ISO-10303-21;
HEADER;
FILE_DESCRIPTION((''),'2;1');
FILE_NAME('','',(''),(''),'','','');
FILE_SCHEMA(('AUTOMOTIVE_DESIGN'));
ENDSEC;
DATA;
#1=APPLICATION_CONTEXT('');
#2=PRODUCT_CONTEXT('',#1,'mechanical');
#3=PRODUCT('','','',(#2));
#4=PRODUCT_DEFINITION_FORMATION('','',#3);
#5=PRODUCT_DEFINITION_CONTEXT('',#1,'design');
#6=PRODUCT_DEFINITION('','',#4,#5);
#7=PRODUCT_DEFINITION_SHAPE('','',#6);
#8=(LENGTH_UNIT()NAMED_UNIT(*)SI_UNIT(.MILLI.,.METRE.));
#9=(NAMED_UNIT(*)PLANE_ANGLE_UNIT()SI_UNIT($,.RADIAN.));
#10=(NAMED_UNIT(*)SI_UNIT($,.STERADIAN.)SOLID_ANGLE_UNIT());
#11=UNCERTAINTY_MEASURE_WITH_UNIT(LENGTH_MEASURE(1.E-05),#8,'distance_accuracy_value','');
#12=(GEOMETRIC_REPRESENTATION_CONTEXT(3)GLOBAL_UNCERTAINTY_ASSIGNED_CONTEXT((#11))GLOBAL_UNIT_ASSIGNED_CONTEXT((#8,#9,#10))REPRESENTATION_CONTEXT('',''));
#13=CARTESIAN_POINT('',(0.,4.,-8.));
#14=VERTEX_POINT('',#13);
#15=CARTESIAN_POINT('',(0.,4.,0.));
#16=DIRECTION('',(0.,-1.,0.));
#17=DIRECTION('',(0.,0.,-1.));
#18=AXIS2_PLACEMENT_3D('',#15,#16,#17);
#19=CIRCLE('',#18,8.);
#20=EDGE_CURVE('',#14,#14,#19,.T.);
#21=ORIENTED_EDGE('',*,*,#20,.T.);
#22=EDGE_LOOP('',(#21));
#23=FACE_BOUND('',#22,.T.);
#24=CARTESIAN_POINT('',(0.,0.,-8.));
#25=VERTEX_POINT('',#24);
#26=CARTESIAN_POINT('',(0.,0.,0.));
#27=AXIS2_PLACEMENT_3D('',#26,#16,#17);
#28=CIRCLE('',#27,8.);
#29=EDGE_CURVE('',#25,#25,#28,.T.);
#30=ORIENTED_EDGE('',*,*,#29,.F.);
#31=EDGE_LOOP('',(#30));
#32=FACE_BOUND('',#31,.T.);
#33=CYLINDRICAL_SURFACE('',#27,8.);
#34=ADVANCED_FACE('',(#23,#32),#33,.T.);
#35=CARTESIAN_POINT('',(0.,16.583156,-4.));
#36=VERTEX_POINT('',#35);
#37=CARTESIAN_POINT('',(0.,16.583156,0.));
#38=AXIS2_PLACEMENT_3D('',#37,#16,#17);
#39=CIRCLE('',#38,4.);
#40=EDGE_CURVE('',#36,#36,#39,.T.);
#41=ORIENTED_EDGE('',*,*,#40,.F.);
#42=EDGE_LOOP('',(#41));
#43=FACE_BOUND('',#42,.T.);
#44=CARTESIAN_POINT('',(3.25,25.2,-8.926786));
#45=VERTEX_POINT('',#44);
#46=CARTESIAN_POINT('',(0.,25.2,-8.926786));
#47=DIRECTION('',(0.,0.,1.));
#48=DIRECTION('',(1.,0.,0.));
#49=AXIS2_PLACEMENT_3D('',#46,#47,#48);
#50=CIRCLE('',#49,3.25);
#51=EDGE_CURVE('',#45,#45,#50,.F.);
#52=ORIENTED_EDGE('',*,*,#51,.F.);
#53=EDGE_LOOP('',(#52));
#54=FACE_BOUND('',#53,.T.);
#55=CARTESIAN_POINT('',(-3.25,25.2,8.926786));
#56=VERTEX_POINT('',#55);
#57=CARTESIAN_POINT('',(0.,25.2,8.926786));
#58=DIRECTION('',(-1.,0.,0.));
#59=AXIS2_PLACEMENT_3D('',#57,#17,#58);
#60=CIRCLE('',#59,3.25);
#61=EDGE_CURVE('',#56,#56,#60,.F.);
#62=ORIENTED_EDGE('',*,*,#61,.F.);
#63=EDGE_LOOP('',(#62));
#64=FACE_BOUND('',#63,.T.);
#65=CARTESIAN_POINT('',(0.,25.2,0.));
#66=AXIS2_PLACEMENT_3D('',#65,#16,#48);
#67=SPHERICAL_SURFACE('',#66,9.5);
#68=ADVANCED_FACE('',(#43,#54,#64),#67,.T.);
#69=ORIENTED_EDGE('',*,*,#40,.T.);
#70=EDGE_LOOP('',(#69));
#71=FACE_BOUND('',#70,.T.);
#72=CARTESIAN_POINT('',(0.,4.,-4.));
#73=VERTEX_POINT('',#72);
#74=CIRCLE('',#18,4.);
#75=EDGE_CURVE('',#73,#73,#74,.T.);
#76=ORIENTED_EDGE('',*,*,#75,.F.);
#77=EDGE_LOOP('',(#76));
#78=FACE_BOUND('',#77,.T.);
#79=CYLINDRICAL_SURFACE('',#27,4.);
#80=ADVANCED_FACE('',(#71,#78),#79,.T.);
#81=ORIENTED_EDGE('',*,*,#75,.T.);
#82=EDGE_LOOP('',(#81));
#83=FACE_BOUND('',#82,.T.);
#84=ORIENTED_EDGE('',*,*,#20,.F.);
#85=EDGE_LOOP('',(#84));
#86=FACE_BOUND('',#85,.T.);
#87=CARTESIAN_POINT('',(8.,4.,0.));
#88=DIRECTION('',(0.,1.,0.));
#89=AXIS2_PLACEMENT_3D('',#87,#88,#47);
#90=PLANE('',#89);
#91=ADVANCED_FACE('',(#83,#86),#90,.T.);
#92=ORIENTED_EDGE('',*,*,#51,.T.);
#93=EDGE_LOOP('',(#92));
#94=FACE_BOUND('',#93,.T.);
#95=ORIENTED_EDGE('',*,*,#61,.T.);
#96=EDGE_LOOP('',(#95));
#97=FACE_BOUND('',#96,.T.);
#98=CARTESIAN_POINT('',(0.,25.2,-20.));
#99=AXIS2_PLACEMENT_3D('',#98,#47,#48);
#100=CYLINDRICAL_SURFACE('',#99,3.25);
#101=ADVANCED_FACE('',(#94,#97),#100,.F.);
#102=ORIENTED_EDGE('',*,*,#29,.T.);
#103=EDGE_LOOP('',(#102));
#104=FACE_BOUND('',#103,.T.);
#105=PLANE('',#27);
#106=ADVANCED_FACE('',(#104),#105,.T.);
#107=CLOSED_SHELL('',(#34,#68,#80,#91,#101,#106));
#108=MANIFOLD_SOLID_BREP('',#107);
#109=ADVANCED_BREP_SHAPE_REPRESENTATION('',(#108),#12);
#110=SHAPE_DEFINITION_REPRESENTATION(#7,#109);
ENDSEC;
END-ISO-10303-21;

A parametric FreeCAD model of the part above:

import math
import FreeCAD as App
import Part
import Sketcher

V = App.Vector

doc = App.newDocument("Part")
body = doc.addObject("PartDesign::Body", "Body")

sketch1 = body.newObject("Sketcher::SketchObject", "Sketch")
sketch1.AttachmentSupport = (doc.getObject("XY_Plane"), [""])
sketch1.MapMode = "FlatFace"
sketch1.addGeometry(Part.LineSegment(V(0, 0, 0), V(8, 0, 0)), False)
sketch1.addGeometry(Part.LineSegment(V(8, 0, 0), V(8, 4, 0)), False)
sketch1.addGeometry(Part.LineSegment(V(8, 4, 0), V(4, 4, 0)), False)
sketch1.addGeometry(Part.LineSegment(V(4, 4, 0), V(4, 16.6, 0)), False)
sketch1.addGeometry(Part.ArcOfCircle(Part.Circle(V(0, 25.2, 0), V(0, 0, 1), 9.5), math.radians(-65), math.radians(90)), False)
sketch1.addGeometry(Part.LineSegment(V(0, 34.7, 0), V(0, 0, 0)), False)
sketch1.addConstraint(Sketcher.Constraint("Coincident", 0, 2, 1, 1))
sketch1.addConstraint(Sketcher.Constraint("Coincident", 1, 2, 2, 1))
sketch1.addConstraint(Sketcher.Constraint("Coincident", 2, 2, 3, 1))
sketch1.addConstraint(Sketcher.Constraint("Coincident", 3, 2, 4, 1))
sketch1.addConstraint(Sketcher.Constraint("Coincident", 4, 2, 5, 1))
sketch1.addConstraint(Sketcher.Constraint("Coincident", 5, 2, 0, 1))
sketch1.addConstraint(Sketcher.Constraint("Horizontal", 0))
sketch1.addConstraint(Sketcher.Constraint("Vertical", 1))
sketch1.addConstraint(Sketcher.Constraint("Horizontal", 2))
sketch1.addConstraint(Sketcher.Constraint("Vertical", 3))
sketch1.addConstraint(Sketcher.Constraint("Vertical", 5))
sketch1.addConstraint(Sketcher.Constraint("Coincident", 5, 2, -1, 1))
sketch1.addConstraint(Sketcher.Constraint("PointOnObject", 4, 3, -2))
sketch1.addConstraint(Sketcher.Constraint("Equal", 2, 1))
sketch1.addConstraint(Sketcher.Constraint("Radius", 4, 9.5))
sketch1.addConstraint(Sketcher.Constraint("DistanceX", 0, 1, 0, 2, 8.0))
sketch1.addConstraint(Sketcher.Constraint("DistanceX", 2, 2, 2, 1, 4.0))
sketch1.addConstraint(Sketcher.Constraint("DistanceY", 5, 2, 5, 1, 34.7))
revolution = body.newObject("PartDesign::Revolution", "Revolution")
revolution.Profile = sketch1
revolution.ReferenceAxis = (sketch1, ["V_Axis"])
revolution.Angle = 360

sketch2 = body.newObject("Sketcher::SketchObject", "Sketch001")
sketch2.AttachmentSupport = (doc.getObject("XY_Plane"), [""])
sketch2.MapMode = "FlatFace"
sketch2.addGeometry(Part.Circle(V(0, 25.2, 0), V(0, 0, 1), 3.2), False)
sketch2.addConstraint(Sketcher.Constraint("PointOnObject", 0, 3, -2))
sketch2.addConstraint(Sketcher.Constraint("Diameter", 0, 6.5))
sketch2.addConstraint(Sketcher.Constraint("DistanceY", -1, 1, 0, 3, 25.2))
pocket1 = body.newObject("PartDesign::Pocket", "Pocket")
pocket1.Profile = sketch2
pocket1.Length = 40
pocket1.Midplane = True

doc.recompute()
